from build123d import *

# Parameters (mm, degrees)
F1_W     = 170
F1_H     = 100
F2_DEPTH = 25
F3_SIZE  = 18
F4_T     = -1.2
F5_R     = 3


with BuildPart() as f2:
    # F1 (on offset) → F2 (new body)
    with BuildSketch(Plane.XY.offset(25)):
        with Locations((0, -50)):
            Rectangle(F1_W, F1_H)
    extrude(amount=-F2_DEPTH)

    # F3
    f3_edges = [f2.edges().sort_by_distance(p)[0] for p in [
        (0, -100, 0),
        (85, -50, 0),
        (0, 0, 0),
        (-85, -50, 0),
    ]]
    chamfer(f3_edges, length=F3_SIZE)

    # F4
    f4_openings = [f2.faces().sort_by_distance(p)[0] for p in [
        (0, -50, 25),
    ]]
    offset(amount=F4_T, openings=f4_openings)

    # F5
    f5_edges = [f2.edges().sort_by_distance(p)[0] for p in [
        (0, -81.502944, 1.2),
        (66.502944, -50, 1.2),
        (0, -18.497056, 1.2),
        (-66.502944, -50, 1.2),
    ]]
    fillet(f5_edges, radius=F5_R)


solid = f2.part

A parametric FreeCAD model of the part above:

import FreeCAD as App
import Part
import Sketcher

V = App.Vector
Q = App.Units.Quantity


def edges_at(feature, points):
    """Names of the edges that pass closest to the given points."""
    edges = feature.Shape.Edges
    near = lambda p: min(range(len(edges)), key=lambda i: edges[i].distToShape(Part.Vertex(*p))[0])
    return sorted({f"Edge{near(p) + 1}" for p in points})


def faces_at(feature, points):
    """Names of the faces that lie closest to the given points."""
    faces = feature.Shape.Faces
    near = lambda p: min(range(len(faces)), key=lambda i: faces[i].distToShape(Part.Vertex(*p))[0])
    return sorted({f"Face{near(p) + 1}" for p in points})


def add_polygon(sketch, points):
    """Adds a closed chain of lines whose ends are joined by coincident constraints."""
    first, n = sketch.GeometryCount, len(points)
    for a, b in zip(points, points[1:] + points[:1]):
        sketch.addGeometry(Part.LineSegment(App.Vector(*a, 0), App.Vector(*b, 0)), False)
    for i in range(n):
        sketch.addConstraint(Sketcher.Constraint("Coincident", first + i, 2, first + (i + 1) % n, 1))

doc = App.newDocument("Part")
body = doc.addObject("PartDesign::Body", "Body")

# Sketch on XY plane
sketch1 = body.newObject("Sketcher::SketchObject", "Sketch")
sketch1.AttachmentSupport = (doc.getObject("XY_Plane"), [""])
sketch1.MapMode = "FlatFace"
sketch1.AttachmentOffset = App.Placement(V(0, 0, 25), App.Rotation())
add_polygon(sketch1, [(-85, 0), (-85, -100), (85, -100), (85, 0)])  # lines 0-3
sketch1.addConstraint(Sketcher.Constraint("Vertical", 0))
sketch1.addConstraint(Sketcher.Constraint("Horizontal", 1))
sketch1.addConstraint(Sketcher.Constraint("Vertical", 2))
sketch1.addConstraint(Sketcher.Constraint("Horizontal", 3))
sketch1.addConstraint(Sketcher.Constraint("Symmetric", 2, 2, 3, 2, -1, 1))
sketch1.addConstraint(Sketcher.Constraint("DistanceX", 1, 1, 1, 2, Q("170 mm")))
sketch1.addConstraint(Sketcher.Constraint("DistanceY", 0, 2, 0, 1, Q("100 mm")))
pad1 = body.newObject("PartDesign::Pad", "Pad")
pad1.Profile = sketch1
pad1.Length = 25
pad1.Reversed = True
doc.recompute()

chamfer = body.newObject("PartDesign::Chamfer", "Chamfer")
chamfer.Base = (pad1, edges_at(pad1, [
    (0, -100, 0),
    (85, -50, 0),
    (0, 0, 0),
    (-85, -50, 0),
]))
chamfer.Size = 18
doc.recompute()

thickness = body.newObject("PartDesign::Thickness", "Thickness")
thickness.Base = (chamfer, faces_at(chamfer, [(0, -50, 25)]))
thickness.Value = 1.2
thickness.Reversed = True
thickness.Join = "Arc"
doc.recompute()

fillet = body.newObject("PartDesign::Fillet", "Fillet")
fillet.Base = (thickness, edges_at(thickness, [
    (0, -81.503, 1.2),
    (66.503, -50, 1.2),
    (0, -18.497, 1.2),
    (-66.503, -50, 1.2),
]))
fillet.Radius = 3

doc.recompute()
